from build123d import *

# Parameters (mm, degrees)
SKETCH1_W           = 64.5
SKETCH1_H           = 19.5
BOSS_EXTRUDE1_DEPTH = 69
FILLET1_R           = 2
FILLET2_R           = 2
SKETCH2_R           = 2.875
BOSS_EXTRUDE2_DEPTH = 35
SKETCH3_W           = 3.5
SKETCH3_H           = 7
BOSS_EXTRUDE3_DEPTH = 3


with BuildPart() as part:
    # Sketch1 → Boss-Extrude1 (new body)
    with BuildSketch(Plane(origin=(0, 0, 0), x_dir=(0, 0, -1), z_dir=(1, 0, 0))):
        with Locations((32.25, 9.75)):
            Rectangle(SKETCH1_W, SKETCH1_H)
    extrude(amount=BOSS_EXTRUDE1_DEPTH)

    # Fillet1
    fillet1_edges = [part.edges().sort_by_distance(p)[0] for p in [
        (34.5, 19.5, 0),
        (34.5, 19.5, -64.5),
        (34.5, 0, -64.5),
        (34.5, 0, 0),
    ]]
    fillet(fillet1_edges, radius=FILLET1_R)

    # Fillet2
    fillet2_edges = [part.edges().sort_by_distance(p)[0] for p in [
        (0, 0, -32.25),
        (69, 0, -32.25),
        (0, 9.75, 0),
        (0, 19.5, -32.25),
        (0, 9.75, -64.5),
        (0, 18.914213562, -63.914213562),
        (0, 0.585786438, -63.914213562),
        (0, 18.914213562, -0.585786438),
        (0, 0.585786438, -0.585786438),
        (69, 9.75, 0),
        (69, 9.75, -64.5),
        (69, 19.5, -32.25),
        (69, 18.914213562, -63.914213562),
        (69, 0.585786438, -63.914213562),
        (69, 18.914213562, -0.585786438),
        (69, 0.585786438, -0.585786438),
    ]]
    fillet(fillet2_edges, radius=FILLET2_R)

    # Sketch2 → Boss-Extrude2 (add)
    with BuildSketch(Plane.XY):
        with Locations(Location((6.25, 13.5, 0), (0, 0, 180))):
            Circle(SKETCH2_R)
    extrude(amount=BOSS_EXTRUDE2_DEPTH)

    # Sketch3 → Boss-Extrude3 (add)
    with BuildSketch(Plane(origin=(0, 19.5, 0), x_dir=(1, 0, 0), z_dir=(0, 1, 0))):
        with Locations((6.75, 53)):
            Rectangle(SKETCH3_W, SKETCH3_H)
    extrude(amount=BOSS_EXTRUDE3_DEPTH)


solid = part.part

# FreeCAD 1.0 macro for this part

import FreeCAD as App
import Part
import Sketcher
Q = App.Units.Quantity


def edges_at(feature, points):
    """Names of the edges that pass closest to the given points."""
    edges = feature.Shape.Edges
    near = lambda p: min(range(len(edges)), key=lambda i: edges[i].distToShape(Part.Vertex(*p))[0])
    return sorted({f"Edge{near(p) + 1}" for p in points})

doc = App.newDocument("Part")
body = doc.addObject("PartDesign::Body", "Body")

sketch1 = doc.addObject("Sketcher::SketchObject", "Sketch")
body.addObject(sketch1)
sketch1.AttachmentSupport = (doc.YZ_Plane, [""])
sketch1.MapMode = "FlatFace"
sketch1.addGeometry(Part.LineSegment(App.Vector(19.5, 0, 0), App.Vector(0, 0, 0)), False)
sketch1.addGeometry(Part.LineSegment(App.Vector(0, 0, 0), App.Vector(0, -64.5, 0)), False)
sketch1.addGeometry(Part.LineSegment(App.Vector(0, -64.5, 0), App.Vector(19.5, -64.5, 0)), False)
sketch1.addGeometry(Part.LineSegment(App.Vector(19.5, -64.5, 0), App.Vector(19.5, 0, 0)), False)
sketch1.addConstraint(Sketcher.Constraint("Coincident", 0, 2, 1, 1))
sketch1.addConstraint(Sketcher.Constraint("Coincident", 1, 2, 2, 1))
sketch1.addConstraint(Sketcher.Constraint("Coincident", 2, 2, 3, 1))
sketch1.addConstraint(Sketcher.Constraint("Coincident", 3, 2, 0, 1))
sketch1.addConstraint(Sketcher.Constraint("Horizontal", 0))
sketch1.addConstraint(Sketcher.Constraint("Vertical", 1))
sketch1.addConstraint(Sketcher.Constraint("Horizontal", 2))
sketch1.addConstraint(Sketcher.Constraint("Vertical", 3))
sketch1.addConstraint(Sketcher.Constraint("Coincident", 0, 2, -1, 1))
sketch1.addConstraint(Sketcher.Constraint("DistanceX", 0, 2, 0, 1, Q("19.5 mm")))
sketch1.addConstraint(Sketcher.Constraint("DistanceY", 1, 2, 1, 1, Q("64.5 mm")))
pad1 = doc.addObject("PartDesign::Pad", "Pad")
body.addObject(pad1)
pad1.Profile = sketch1
pad1.Length = 69
doc.recompute()

fillet = doc.addObject("PartDesign::Fillet", "Fillet")
body.addObject(fillet)
fillet.Base = (pad1, edges_at(pad1, [
    (34.5, 19.5, 0),
    (34.5, 19.5, -64.5),
    (34.5, 0, -64.5),
    (34.5, 0, 0),
]))
fillet.Radius = 2
doc.recompute()

fillet2 = doc.addObject("PartDesign::Fillet", "Fillet001")
body.addObject(fillet2)
fillet2.Base = (fillet, edges_at(fillet, [
    (0, 0, -32.25),
    (69, 0, -32.25),
    (0, 9.75, 0),
    (0, 19.5, -32.25),
    (0, 9.75, -64.5),
    (0, 18.914, -63.914),
    (0, 0.586, -63.914),
    (0, 18.914, -0.586),
    (0, 0.586, -0.586),
    (69, 9.75, 0),
    (69, 9.75, -64.5),
    (69, 19.5, -32.25),
    (69, 18.914, -63.914),
    (69, 0.586, -63.914),
    (69, 18.914, -0.586),
    (69, 0.586, -0.586),
]))
fillet2.Radius = 2

sketch2 = doc.addObject("Sketcher::SketchObject", "Sketch001")
body.addObject(sketch2)
sketch2.AttachmentSupport = (doc.XY_Plane, [""])
sketch2.MapMode = "FlatFace"
sketch2.addGeometry(Part.Circle(App.Vector(6.25, 13.5, 0), App.Vector(0, 0, 1), 2.875), False)
sketch2.addConstraint(Sketcher.Constraint("Diameter", 0, Q("5.75 mm")))
sketch2.addConstraint(Sketcher.Constraint("DistanceY", -1, 1, 0, 3, Q("13.5 mm")))
sketch2.addConstraint(Sketcher.Constraint("DistanceX", -1, 1, 0, 3, Q("6.25 mm")))
pad2 = doc.addObject("PartDesign::Pad", "Pad001")
body.addObject(pad2)
pad2.Profile = sketch2
pad2.Length = 35

sketch3 = doc.addObject("Sketcher::SketchObject", "Sketch002")
body.addObject(sketch3)
sketch3.AttachmentSupport = (doc.XZ_Plane, [""])
sketch3.MapMode = "FlatFace"
sketch3.AttachmentOffset = App.Placement(App.Vector(0, 0, -19.5), App.Rotation())
sketch3.addGeometry(Part.LineSegment(App.Vector(5, -56.5, 0), App.Vector(5, -49.5, 0)), False)
sketch3.addGeometry(Part.LineSegment(App.Vector(5, -49.5, 0), App.Vector(8.5, -49.5, 0)), False)
sketch3.addGeometry(Part.LineSegment(App.Vector(8.5, -49.5, 0), App.Vector(8.5, -56.5, 0)), False)
sketch3.addGeometry(Part.LineSegment(App.Vector(8.5, -56.5, 0), App.Vector(5, -56.5, 0)), False)
sketch3.addConstraint(Sketcher.Constraint("Coincident", 0, 2, 1, 1))
sketch3.addConstraint(Sketcher.Constraint("Coincident", 1, 2, 2, 1))
sketch3.addConstraint(Sketcher.Constraint("Coincident", 2, 2, 3, 1))
sketch3.addConstraint(Sketcher.Constraint("Coincident", 3, 2, 0, 1))
sketch3.addConstraint(Sketcher.Constraint("Vertical", 0))
sketch3.addConstraint(Sketcher.Constraint("Horizontal", 1))
sketch3.addConstraint(Sketcher.Constraint("Vertical", 2))
sketch3.addConstraint(Sketcher.Constraint("Horizontal", 3))
sketch3.addConstraint(Sketcher.Constraint("DistanceY", 0, 1, 0, 2, Q("7 mm")))
sketch3.addConstraint(Sketcher.Constraint("DistanceX", 1, 1, 1, 2, Q("3.5 mm")))
sketch3.addConstraint(Sketcher.Constraint("DistanceX", -1, 1, 0, 2, Q("5 mm")))
sketch3.addConstraint(Sketcher.Constraint("DistanceY", 0, 2, -1, 1, Q("49.5 mm")))
pad3 = doc.addObject("PartDesign::Pad", "Pad002")
body.addObject(pad3)
pad3.Profile = sketch3
pad3.Length = 3
pad3.Reversed = True

doc.recompute()
